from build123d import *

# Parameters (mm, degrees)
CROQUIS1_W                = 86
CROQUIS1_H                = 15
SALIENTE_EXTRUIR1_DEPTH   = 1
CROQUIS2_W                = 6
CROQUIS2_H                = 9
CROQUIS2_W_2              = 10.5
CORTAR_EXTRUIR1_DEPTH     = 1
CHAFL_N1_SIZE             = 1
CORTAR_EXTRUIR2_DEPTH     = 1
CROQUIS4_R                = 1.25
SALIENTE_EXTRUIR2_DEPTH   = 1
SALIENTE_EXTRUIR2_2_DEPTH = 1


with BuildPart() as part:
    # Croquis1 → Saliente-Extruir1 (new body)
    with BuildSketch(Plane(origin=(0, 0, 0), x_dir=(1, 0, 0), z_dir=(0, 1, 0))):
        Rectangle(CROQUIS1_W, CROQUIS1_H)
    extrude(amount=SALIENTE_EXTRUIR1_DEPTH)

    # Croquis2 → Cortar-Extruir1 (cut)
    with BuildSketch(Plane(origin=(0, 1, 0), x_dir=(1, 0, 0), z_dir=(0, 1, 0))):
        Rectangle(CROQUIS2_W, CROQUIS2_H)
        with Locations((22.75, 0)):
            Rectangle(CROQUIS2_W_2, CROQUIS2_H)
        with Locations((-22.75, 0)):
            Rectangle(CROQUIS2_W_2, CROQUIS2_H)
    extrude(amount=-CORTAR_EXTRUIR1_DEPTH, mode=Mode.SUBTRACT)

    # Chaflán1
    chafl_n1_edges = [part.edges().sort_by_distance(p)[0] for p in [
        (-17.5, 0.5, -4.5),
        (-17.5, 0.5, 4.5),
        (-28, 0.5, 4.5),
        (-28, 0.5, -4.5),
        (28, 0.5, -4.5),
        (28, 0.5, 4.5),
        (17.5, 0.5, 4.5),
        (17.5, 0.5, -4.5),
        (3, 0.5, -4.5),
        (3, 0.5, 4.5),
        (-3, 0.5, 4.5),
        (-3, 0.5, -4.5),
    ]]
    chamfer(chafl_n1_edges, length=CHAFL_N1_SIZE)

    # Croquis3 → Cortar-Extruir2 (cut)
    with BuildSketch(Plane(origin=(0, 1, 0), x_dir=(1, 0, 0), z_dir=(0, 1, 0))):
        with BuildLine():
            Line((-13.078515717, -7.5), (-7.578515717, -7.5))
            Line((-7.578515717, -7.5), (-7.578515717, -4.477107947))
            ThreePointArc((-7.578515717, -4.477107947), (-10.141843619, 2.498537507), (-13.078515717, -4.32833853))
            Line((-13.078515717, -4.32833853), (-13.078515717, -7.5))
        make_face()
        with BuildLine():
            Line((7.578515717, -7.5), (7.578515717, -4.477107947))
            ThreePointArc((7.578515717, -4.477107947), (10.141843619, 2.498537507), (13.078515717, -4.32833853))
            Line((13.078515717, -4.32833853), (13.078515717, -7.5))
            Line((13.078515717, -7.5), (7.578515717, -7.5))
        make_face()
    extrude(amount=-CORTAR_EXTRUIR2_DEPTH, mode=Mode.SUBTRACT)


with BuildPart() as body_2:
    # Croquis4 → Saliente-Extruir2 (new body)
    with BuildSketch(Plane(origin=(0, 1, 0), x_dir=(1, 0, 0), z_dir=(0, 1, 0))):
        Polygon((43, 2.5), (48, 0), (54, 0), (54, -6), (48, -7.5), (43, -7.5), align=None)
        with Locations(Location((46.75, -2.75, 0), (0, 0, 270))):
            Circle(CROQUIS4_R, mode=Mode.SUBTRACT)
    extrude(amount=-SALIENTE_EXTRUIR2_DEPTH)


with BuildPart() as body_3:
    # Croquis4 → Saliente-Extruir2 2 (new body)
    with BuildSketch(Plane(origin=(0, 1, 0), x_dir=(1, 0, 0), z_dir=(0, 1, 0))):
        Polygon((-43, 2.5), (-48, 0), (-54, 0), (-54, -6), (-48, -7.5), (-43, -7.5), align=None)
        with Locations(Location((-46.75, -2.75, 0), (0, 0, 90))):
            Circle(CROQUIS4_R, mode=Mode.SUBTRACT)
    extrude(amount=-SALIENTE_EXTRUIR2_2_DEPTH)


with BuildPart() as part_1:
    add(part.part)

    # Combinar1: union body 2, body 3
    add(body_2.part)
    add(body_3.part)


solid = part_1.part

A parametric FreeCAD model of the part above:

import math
import FreeCAD as App
import Part
import Sketcher

V = App.Vector
Q = App.Units.Quantity


def edges_at(feature, points):
    """Names of the edges that pass closest to the given points."""
    edges = feature.Shape.Edges
    near = lambda p: min(range(len(edges)), key=lambda i: edges[i].distToShape(Part.Vertex(*p))[0])
    return sorted({f"Edge{near(p) + 1}" for p in points})

doc = App.newDocument("Part")
params = doc.addObject("Spreadsheet::Sheet", "Params")
for row, (alias, value) in enumerate([
    ("sketch1_width", "86 mm"),
    ("sketch1_height", "15 mm"),
    ("pad1_length", "1 mm"),
    ("sketch2_width", "6 mm"),
    ("sketch2_height", "9 mm"),
    ("sketch2_width2", "10.5 mm"),
    ("pocket1_length", "1 mm"),
    ("chamfer_size", "1 mm"),
    ("sketch3_radius", "4 mm"),
    ("sketch3_width", "5.5 mm"),
    ("pocket2_length", "1 mm"),
    ("sketch4_diameter", "2.5 mm"),
    ("sketch4_width", "5 mm"),
    ("sketch4_width2", "6 mm"),
    ("sketch4_height", "10 mm"),
    ("pad2_length", "1 mm"),
    ("sketch5_diameter", "2.5 mm"),
    ("sketch5_width", "6 mm"),
    ("sketch5_width2", "5 mm"),
    ("sketch5_height", "10 mm"),
    ("pad3_length", "1 mm"),
], start=1):
    params.set(f"A{row}", alias)
    params.set(f"B{row}", "=" + value)
    params.setAlias(f"B{row}", alias)

body = doc.addObject("PartDesign::Body", "Body")

# Sketch on XZ plane
sketch1 = body.newObject("Sketcher::SketchObject", "Sketch")
sketch1.AttachmentSupport = (doc.getObject("XZ_Plane"), [""])
sketch1.MapMode = "FlatFace"
sketch1.addGeometry(Part.LineSegment(V(-43, -7.5, 0), V(-43, 7.5, 0)), False)
sketch1.addGeometry(Part.LineSegment(V(-43, 7.5, 0), V(43, 7.5, 0)), False)
sketch1.addGeometry(Part.LineSegment(V(43, 7.5, 0), V(43, -7.5, 0)), False)
sketch1.addGeometry(Part.LineSegment(V(43, -7.5, 0), V(-43, -7.5, 0)), False)
sketch1.addConstraint(Sketcher.Constraint("Coincident", 0, 2, 1, 1))
sketch1.addConstraint(Sketcher.Constraint("Coincident", 1, 2, 2, 1))
sketch1.addConstraint(Sketcher.Constraint("Coincident", 2, 2, 3, 1))
sketch1.addConstraint(Sketcher.Constraint("Coincident", 3, 2, 0, 1))
sketch1.addConstraint(Sketcher.Constraint("Vertical", 0))
sketch1.addConstraint(Sketcher.Constraint("Horizontal", 1))
sketch1.addConstraint(Sketcher.Constraint("Vertical", 2))
sketch1.addConstraint(Sketcher.Constraint("Horizontal", 3))
sketch1.addConstraint(Sketcher.Constraint("Symmetric", 0, 2, 2, 2, -1, 1))
sketch1.addConstraint(Sketcher.Constraint("DistanceX", 1, 1, 1, 2, Q("86 mm")))
sketch1.addConstraint(Sketcher.Constraint("DistanceY", 0, 1, 0, 2, Q("15 mm")))
sketch1.setExpression("Constraints[9]", "Params.sketch1_width")
sketch1.setExpression("Constraints[10]", "Params.sketch1_height")
pad1 = body.newObject("PartDesign::Pad", "Pad")
pad1.Profile = sketch1
pad1.setExpression("Length", "Params.pad1_length")
pad1.Reversed = True

# Sketch on XZ plane
sketch2 = body.newObject("Sketcher::SketchObject", "Sketch001")
sketch2.AttachmentSupport = (doc.getObject("XZ_Plane"), [""])
sketch2.MapMode = "FlatFace"
sketch2.AttachmentOffset = App.Placement(V(0, 0, -1), App.Rotation())
sketch2.addGeometry(Part.LineSegment(V(-3, -4.5, 0), V(-3, 4.5, 0)), False)
sketch2.addGeometry(Part.LineSegment(V(-3, 4.5, 0), V(3, 4.5, 0)), False)
sketch2.addGeometry(Part.LineSegment(V(3, 4.5, 0), V(3, -4.5, 0)), False)
sketch2.addGeometry(Part.LineSegment(V(3, -4.5, 0), V(-3, -4.5, 0)), False)
sketch2.addGeometry(Part.LineSegment(V(17.5, -4.5, 0), V(17.5, 4.5, 0)), False)
sketch2.addGeometry(Part.LineSegment(V(17.5, 4.5, 0), V(28, 4.5, 0)), False)
sketch2.addGeometry(Part.LineSegment(V(28, 4.5, 0), V(28, -4.5, 0)), False)
sketch2.addGeometry(Part.LineSegment(V(28, -4.5, 0), V(17.5, -4.5, 0)), False)
sketch2.addGeometry(Part.LineSegment(V(-28, -4.5, 0), V(-28, 4.5, 0)), False)
sketch2.addGeometry(Part.LineSegment(V(-28, 4.5, 0), V(-17.5, 4.5, 0)), False)
sketch2.addGeometry(Part.LineSegment(V(-17.5, 4.5, 0), V(-17.5, -4.5, 0)), False)
sketch2.addGeometry(Part.LineSegment(V(-17.5, -4.5, 0), V(-28, -4.5, 0)), False)
sketch2.addConstraint(Sketcher.Constraint("Coincident", 0, 2, 1, 1))
sketch2.addConstraint(Sketcher.Constraint("Coincident", 1, 2, 2, 1))
sketch2.addConstraint(Sketcher.Constraint("Coincident", 2, 2, 3, 1))
sketch2.addConstraint(Sketcher.Constraint("Coincident", 3, 2, 0, 1))
sketch2.addConstraint(Sketcher.Constraint("Coincident", 4, 2, 5, 1))
sketch2.addConstraint(Sketcher.Constraint("Coincident", 5, 2, 6, 1))
sketch2.addConstraint(Sketcher.Constraint("Coincident", 6, 2, 7, 1))
sketch2.addConstraint(Sketcher.Constraint("Coincident", 7, 2, 4, 1))
sketch2.addConstraint(Sketcher.Constraint("Coincident", 8, 2, 9, 1))
sketch2.addConstraint(Sketcher.Constraint("Coincident", 9, 2, 10, 1))
sketch2.addConstraint(Sketcher.Constraint("Coincident", 10, 2, 11, 1))
sketch2.addConstraint(Sketcher.Constraint("Coincident", 11, 2, 8, 1))
sketch2.addConstraint(Sketcher.Constraint("Vertical", 0))
sketch2.addConstraint(Sketcher.Constraint("Horizontal", 1))
sketch2.addConstraint(Sketcher.Constraint("Vertical", 2))
sketch2.addConstraint(Sketcher.Constraint("Horizontal", 3))
sketch2.addConstraint(Sketcher.Constraint("Vertical", 4))
sketch2.addConstraint(Sketcher.Constraint("Horizontal", 5))
sketch2.addConstraint(Sketcher.Constraint("Vertical", 6))
sketch2.addConstraint(Sketcher.Constraint("Horizontal", 7))
sketch2.addConstraint(Sketcher.Constraint("Vertical", 8))
sketch2.addConstraint(Sketcher.Constraint("Horizontal", 9))
sketch2.addConstraint(Sketcher.Constraint("Vertical", 10))
sketch2.addConstraint(Sketcher.Constraint("Horizontal", 11))
sketch2.addConstraint(Sketcher.Constraint("Symmetric", 0, 2, 2, 2, -1, 1))
sketch2.addConstraint(Sketcher.Constraint("Symmetric", 6, 2, 8, 2, -1, 1))
sketch2.addConstraint(Sketcher.Constraint("Symmetric", 4, 2, 10, 2, -1, 1))
sketch2.addConstraint(Sketcher.Constraint("Horizontal", 1, 2, 4, 2))
sketch2.addConstraint(Sketcher.Constraint("Horizontal", 3, 2, 6, 2))
sketch2.addConstraint(Sketcher.Constraint("DistanceX", 1, 1, 1, 2, Q("6 mm")))
sketch2.addConstraint(Sketcher.Constraint("DistanceY", 0, 1, 0, 2, Q("9 mm")))
sketch2.addConstraint(Sketcher.Constraint("DistanceX", 5, 1, 5, 2, Q("10.5 mm")))
sketch2.addConstraint(Sketcher.Constraint("DistanceX", -1, 1, 5, 2, Q("28 mm")))
sketch2.setExpression("Constraints[29]", "Params.sketch2_width")
sketch2.setExpression("Constraints[30]", "Params.sketch2_height")
sketch2.setExpression("Constraints[31]", "Params.sketch2_width2")
pocket1 = body.newObject("PartDesign::Pocket", "Pocket")
pocket1.Profile = sketch2
pocket1.setExpression("Length", "Params.pocket1_length")
pocket1.Reversed = True
doc.recompute()

chamfer = body.newObject("PartDesign::Chamfer", "Chamfer")
chamfer.Base = (pocket1, edges_at(pocket1, [
    (-17.5, 0.5, -4.5),
    (-17.5, 0.5, 4.5),
    (-28, 0.5, 4.5),
    (-28, 0.5, -4.5),
    (28, 0.5, -4.5),
    (28, 0.5, 4.5),
    (17.5, 0.5, 4.5),
    (17.5, 0.5, -4.5),
    (3, 0.5, -4.5),
    (3, 0.5, 4.5),
    (-3, 0.5, 4.5),
    (-3, 0.5, -4.5),
]))
chamfer.setExpression("Size", "Params.chamfer_size")

# Sketch on XZ plane
sketch3 = body.newObject("Sketcher::SketchObject", "Sketch002")
sketch3.AttachmentSupport = (doc.getObject("XZ_Plane"), [""])
sketch3.MapMode = "FlatFace"
sketch3.AttachmentOffset = App.Placement(V(0, 0, -1), App.Rotation())
sketch3.addGeometry(Part.LineSegment(V(-13.078516, 7.5, 0), V(-7.578516, 7.5, 0)), False)
sketch3.addGeometry(Part.LineSegment(V(-7.578516, 7.5, 0), V(-7.578516, 4.477108, 0)), False)
sketch3.addGeometry(Part.ArcOfCircle(Part.Circle(V(-10.25, 1.5, 0), V(0, 0, 1), 4), math.radians(135.001795), math.radians(408.097035)), False)
sketch3.addGeometry(Part.LineSegment(V(-13.078516, 4.328339, 0), V(-13.078516, 7.5, 0)), False)
sketch3.addGeometry(Part.LineSegment(V(7.578516, 4.477108, 0), V(7.578516, 7.5, 0)), False)
sketch3.addGeometry(Part.LineSegment(V(7.578516, 7.5, 0), V(13.078516, 7.5, 0)), False)
sketch3.addGeometry(Part.LineSegment(V(13.078516, 7.5, 0), V(13.078516, 4.328339, 0)), False)
sketch3.addGeometry(Part.ArcOfCircle(Part.Circle(V(10.25, 1.5, 0), V(0, 0, 1), 4), math.radians(131.902965), math.radians(404.998205)), False)
sketch3.addConstraint(Sketcher.Constraint("Coincident", 0, 2, 1, 1))
sketch3.addConstraint(Sketcher.Constraint("Coincident", 1, 2, 2, 2))
sketch3.addConstraint(Sketcher.Constraint("Coincident", 2, 1, 3, 1))
sketch3.addConstraint(Sketcher.Constraint("Coincident", 3, 2, 0, 1))
sketch3.addConstraint(Sketcher.Constraint("Coincident", 4, 2, 5, 1))
sketch3.addConstraint(Sketcher.Constraint("Coincident", 5, 2, 6, 1))
sketch3.addConstraint(Sketcher.Constraint("Coincident", 6, 2, 7, 2))
sketch3.addConstraint(Sketcher.Constraint("Coincident", 7, 1, 4, 1))
sketch3.addConstraint(Sketcher.Constraint("Horizontal", 0))
sketch3.addConstraint(Sketcher.Constraint("Vertical", 1))
sketch3.addConstraint(Sketcher.Constraint("Vertical", 3))
sketch3.addConstraint(Sketcher.Constraint("Vertical", 4))
sketch3.addConstraint(Sketcher.Constraint("Horizontal", 5))
sketch3.addConstraint(Sketcher.Constraint("Vertical", 6))
sketch3.addConstraint(Sketcher.Constraint("Equal", 2, 7))
sketch3.addConstraint(Sketcher.Constraint("Symmetric", 2, 3, 7, 3, -2))
sketch3.addConstraint(Sketcher.Constraint("Symmetric", 0, 2, 4, 2, -2))
sketch3.addConstraint(Sketcher.Constraint("Horizontal", 2, 1, 6, 2))
sketch3.addConstraint(Sketcher.Constraint("Radius", 2, Q("4 mm")))
sketch3.addConstraint(Sketcher.Constraint("DistanceX", 0, 1, 0, 2, Q("5.5 mm")))
sketch3.addConstraint(Sketcher.Constraint("DistanceY", 2, 3, 0, 2, Q("6 mm")))
sketch3.addConstraint(Sketcher.Constraint("DistanceY", -1, 1, 2, 3, Q("1.5 mm")))
sketch3.addConstraint(Sketcher.Constraint("DistanceX", 2, 3, 7, 3, Q("20.5 mm")))
sketch3.addConstraint(Sketcher.Constraint("DistanceY", 3, 1, 3, 2, Q("3.171661 mm")))
sketch3.setExpression("Constraints[18]", "Params.sketch3_radius")
sketch3.setExpression("Constraints[19]", "Params.sketch3_width")
pocket2 = body.newObject("PartDesign::Pocket", "Pocket001")
pocket2.Profile = sketch3
pocket2.setExpression("Length", "Params.pocket2_length")
pocket2.Reversed = True
body2 = doc.addObject("PartDesign::Body", "Body001")

# Sketch on XZ plane
sketch4 = body2.newObject("Sketcher::SketchObject", "Sketch003")
sketch4.AttachmentSupport = (doc.getObject("XZ_Plane001"), [""])
sketch4.MapMode = "FlatFace"
sketch4.AttachmentOffset = App.Placement(V(0, 0, -1), App.Rotation())
sketch4.addGeometry(Part.LineSegment(V(48, 0, 0), V(43, -2.5, 0)), False)
sketch4.addGeometry(Part.LineSegment(V(43, -2.5, 0), V(43, 7.5, 0)), False)
sketch4.addGeometry(Part.LineSegment(V(43, 7.5, 0), V(48, 7.5, 0)), False)
sketch4.addGeometry(Part.LineSegment(V(48, 7.5, 0), V(54, 6, 0)), False)
sketch4.addGeometry(Part.LineSegment(V(54, 6, 0), V(54, 0, 0)), False)
sketch4.addGeometry(Part.LineSegment(V(54, 0, 0), V(48, 0, 0)), False)
sketch4.addGeometry(Part.Circle(V(46.75, 2.75, 0), V(0, 0, 1), 1.25), False)
sketch4.addConstraint(Sketcher.Constraint("Coincident", 0, 2, 1, 1))
sketch4.addConstraint(Sketcher.Constraint("Coincident", 1, 2, 2, 1))
sketch4.addConstraint(Sketcher.Constraint("Coincident", 2, 2, 3, 1))
sketch4.addConstraint(Sketcher.Constraint("Coincident", 3, 2, 4, 1))
sketch4.addConstraint(Sketcher.Constraint("Coincident", 4, 2, 5, 1))
sketch4.addConstraint(Sketcher.Constraint("Coincident", 5, 2, 0, 1))
sketch4.addConstraint(Sketcher.Constraint("Vertical", 1))
sketch4.addConstraint(Sketcher.Constraint("Horizontal", 2))
sketch4.addConstraint(Sketcher.Constraint("Vertical", 4))
sketch4.addConstraint(Sketcher.Constraint("Horizontal", 5))
sketch4.addConstraint(Sketcher.Constraint("PointOnObject", 4, 2, -1))
sketch4.addConstraint(Sketcher.Constraint("Vertical", 2, 2, 5, 2))
sketch4.addConstraint(Sketcher.Constraint("Equal", 5, 4))
sketch4.addConstraint(Sketcher.Constraint("Diameter", 6, Q("2.5 mm")))
sketch4.addConstraint(Sketcher.Constraint("DistanceX", 2, 1, 2, 2, Q("5 mm")))
sketch4.addConstraint(Sketcher.Constraint("DistanceX", 5, 2, 5, 1, Q("6 mm")))
sketch4.addConstraint(Sketcher.Constraint("DistanceY", 1, 1, 1, 2, Q("10 mm")))
sketch4.addConstraint(Sketcher.Constraint("DistanceX", -1, 1, 0, 2, Q("43 mm")))
sketch4.addConstraint(Sketcher.Constraint("DistanceY", 0, 2, -1, 1, Q("2.5 mm")))
sketch4.addConstraint(Sketcher.Constraint("DistanceX", -1, 1, 6, 3, Q("46.75 mm")))
sketch4.addConstraint(Sketcher.Constraint("DistanceY", -1, 1, 6, 3, Q("2.75 mm")))
sketch4.setExpression("Constraints[13]", "Params.sketch4_diameter")
sketch4.setExpression("Constraints[14]", "Params.sketch4_width")
sketch4.setExpression("Constraints[15]", "Params.sketch4_width2")
sketch4.setExpression("Constraints[16]", "Params.sketch4_height")
pad2 = body2.newObject("PartDesign::Pad", "Pad001")
pad2.Profile = sketch4
pad2.setExpression("Length", "Params.pad2_length")
body3 = doc.addObject("PartDesign::Body", "Body002")

# Sketch on XZ plane
sketch5 = body3.newObject("Sketcher::SketchObject", "Sketch004")
sketch5.AttachmentSupport = (doc.getObject("XZ_Plane002"), [""])
sketch5.MapMode = "FlatFace"
sketch5.AttachmentOffset = App.Placement(V(0, 0, -1), App.Rotation())
sketch5.addGeometry(Part.LineSegment(V(-43, -2.5, 0), V(-48, 0, 0)), False)
sketch5.addGeometry(Part.LineSegment(V(-48, 0, 0), V(-54, 0, 0)), False)
sketch5.addGeometry(Part.LineSegment(V(-54, 0, 0), V(-54, 6, 0)), False)
sketch5.addGeometry(Part.LineSegment(V(-54, 6, 0), V(-48, 7.5, 0)), False)
sketch5.addGeometry(Part.LineSegment(V(-48, 7.5, 0), V(-43, 7.5, 0)), False)
sketch5.addGeometry(Part.LineSegment(V(-43, 7.5, 0), V(-43, -2.5, 0)), False)
sketch5.addGeometry(Part.Circle(V(-46.75, 2.75, 0), V(0, 0, 1), 1.25), False)
sketch5.addConstraint(Sketcher.Constraint("Coincident", 0, 2, 1, 1))
sketch5.addConstraint(Sketcher.Constraint("Coincident", 1, 2, 2, 1))
sketch5.addConstraint(Sketcher.Constraint("Coincident", 2, 2, 3, 1))
sketch5.addConstraint(Sketcher.Constraint("Coincident", 3, 2, 4, 1))
sketch5.addConstraint(Sketcher.Constraint("Coincident", 4, 2, 5, 1))
sketch5.addConstraint(Sketcher.Constraint("Coincident", 5, 2, 0, 1))
sketch5.addConstraint(Sketcher.Constraint("Horizontal", 1))
sketch5.addConstraint(Sketcher.Constraint("Vertical", 2))
sketch5.addConstraint(Sketcher.Constraint("Horizontal", 4))
sketch5.addConstraint(Sketcher.Constraint("Vertical", 5))
sketch5.addConstraint(Sketcher.Constraint("PointOnObject", 0, 2, -1))
sketch5.addConstraint(Sketcher.Constraint("Vertical", 0, 2, 3, 2))
sketch5.addConstraint(Sketcher.Constraint("Equal", 1, 2))
sketch5.addConstraint(Sketcher.Constraint("Diameter", 6, Q("2.5 mm")))
sketch5.addConstraint(Sketcher.Constraint("DistanceX", 1, 2, 1, 1, Q("6 mm")))
sketch5.addConstraint(Sketcher.Constraint("DistanceX", 4, 1, 4, 2, Q("5 mm")))
sketch5.addConstraint(Sketcher.Constraint("DistanceY", 5, 2, 5, 1, Q("10 mm")))
sketch5.addConstraint(Sketcher.Constraint("DistanceX", 0, 2, -1, 1, Q("48 mm")))
sketch5.addConstraint(Sketcher.Constraint("DistanceY", -1, 1, 3, 2, Q("7.5 mm")))
sketch5.addConstraint(Sketcher.Constraint("DistanceX", 6, 3, -1, 1, Q("46.75 mm")))
sketch5.addConstraint(Sketcher.Constraint("DistanceY", -1, 1, 6, 3, Q("2.75 mm")))
sketch5.setExpression("Constraints[13]", "Params.sketch5_diameter")
sketch5.setExpression("Constraints[14]", "Params.sketch5_width")
sketch5.setExpression("Constraints[15]", "Params.sketch5_width2")
sketch5.setExpression("Constraints[16]", "Params.sketch5_height")
pad3 = body3.newObject("PartDesign::Pad", "Pad002")
pad3.Profile = sketch5
pad3.setExpression("Length", "Params.pad3_length")
doc.recompute()

boolean = body.newObject("PartDesign::Boolean", "Boolean")
boolean.Type = "Fuse"
boolean.addObjects([body2])
doc.recompute()

boolean2 = body.newObject("PartDesign::Boolean", "Boolean001")
boolean2.Type = "Fuse"
boolean2.addObjects([body3])

doc.recompute()
